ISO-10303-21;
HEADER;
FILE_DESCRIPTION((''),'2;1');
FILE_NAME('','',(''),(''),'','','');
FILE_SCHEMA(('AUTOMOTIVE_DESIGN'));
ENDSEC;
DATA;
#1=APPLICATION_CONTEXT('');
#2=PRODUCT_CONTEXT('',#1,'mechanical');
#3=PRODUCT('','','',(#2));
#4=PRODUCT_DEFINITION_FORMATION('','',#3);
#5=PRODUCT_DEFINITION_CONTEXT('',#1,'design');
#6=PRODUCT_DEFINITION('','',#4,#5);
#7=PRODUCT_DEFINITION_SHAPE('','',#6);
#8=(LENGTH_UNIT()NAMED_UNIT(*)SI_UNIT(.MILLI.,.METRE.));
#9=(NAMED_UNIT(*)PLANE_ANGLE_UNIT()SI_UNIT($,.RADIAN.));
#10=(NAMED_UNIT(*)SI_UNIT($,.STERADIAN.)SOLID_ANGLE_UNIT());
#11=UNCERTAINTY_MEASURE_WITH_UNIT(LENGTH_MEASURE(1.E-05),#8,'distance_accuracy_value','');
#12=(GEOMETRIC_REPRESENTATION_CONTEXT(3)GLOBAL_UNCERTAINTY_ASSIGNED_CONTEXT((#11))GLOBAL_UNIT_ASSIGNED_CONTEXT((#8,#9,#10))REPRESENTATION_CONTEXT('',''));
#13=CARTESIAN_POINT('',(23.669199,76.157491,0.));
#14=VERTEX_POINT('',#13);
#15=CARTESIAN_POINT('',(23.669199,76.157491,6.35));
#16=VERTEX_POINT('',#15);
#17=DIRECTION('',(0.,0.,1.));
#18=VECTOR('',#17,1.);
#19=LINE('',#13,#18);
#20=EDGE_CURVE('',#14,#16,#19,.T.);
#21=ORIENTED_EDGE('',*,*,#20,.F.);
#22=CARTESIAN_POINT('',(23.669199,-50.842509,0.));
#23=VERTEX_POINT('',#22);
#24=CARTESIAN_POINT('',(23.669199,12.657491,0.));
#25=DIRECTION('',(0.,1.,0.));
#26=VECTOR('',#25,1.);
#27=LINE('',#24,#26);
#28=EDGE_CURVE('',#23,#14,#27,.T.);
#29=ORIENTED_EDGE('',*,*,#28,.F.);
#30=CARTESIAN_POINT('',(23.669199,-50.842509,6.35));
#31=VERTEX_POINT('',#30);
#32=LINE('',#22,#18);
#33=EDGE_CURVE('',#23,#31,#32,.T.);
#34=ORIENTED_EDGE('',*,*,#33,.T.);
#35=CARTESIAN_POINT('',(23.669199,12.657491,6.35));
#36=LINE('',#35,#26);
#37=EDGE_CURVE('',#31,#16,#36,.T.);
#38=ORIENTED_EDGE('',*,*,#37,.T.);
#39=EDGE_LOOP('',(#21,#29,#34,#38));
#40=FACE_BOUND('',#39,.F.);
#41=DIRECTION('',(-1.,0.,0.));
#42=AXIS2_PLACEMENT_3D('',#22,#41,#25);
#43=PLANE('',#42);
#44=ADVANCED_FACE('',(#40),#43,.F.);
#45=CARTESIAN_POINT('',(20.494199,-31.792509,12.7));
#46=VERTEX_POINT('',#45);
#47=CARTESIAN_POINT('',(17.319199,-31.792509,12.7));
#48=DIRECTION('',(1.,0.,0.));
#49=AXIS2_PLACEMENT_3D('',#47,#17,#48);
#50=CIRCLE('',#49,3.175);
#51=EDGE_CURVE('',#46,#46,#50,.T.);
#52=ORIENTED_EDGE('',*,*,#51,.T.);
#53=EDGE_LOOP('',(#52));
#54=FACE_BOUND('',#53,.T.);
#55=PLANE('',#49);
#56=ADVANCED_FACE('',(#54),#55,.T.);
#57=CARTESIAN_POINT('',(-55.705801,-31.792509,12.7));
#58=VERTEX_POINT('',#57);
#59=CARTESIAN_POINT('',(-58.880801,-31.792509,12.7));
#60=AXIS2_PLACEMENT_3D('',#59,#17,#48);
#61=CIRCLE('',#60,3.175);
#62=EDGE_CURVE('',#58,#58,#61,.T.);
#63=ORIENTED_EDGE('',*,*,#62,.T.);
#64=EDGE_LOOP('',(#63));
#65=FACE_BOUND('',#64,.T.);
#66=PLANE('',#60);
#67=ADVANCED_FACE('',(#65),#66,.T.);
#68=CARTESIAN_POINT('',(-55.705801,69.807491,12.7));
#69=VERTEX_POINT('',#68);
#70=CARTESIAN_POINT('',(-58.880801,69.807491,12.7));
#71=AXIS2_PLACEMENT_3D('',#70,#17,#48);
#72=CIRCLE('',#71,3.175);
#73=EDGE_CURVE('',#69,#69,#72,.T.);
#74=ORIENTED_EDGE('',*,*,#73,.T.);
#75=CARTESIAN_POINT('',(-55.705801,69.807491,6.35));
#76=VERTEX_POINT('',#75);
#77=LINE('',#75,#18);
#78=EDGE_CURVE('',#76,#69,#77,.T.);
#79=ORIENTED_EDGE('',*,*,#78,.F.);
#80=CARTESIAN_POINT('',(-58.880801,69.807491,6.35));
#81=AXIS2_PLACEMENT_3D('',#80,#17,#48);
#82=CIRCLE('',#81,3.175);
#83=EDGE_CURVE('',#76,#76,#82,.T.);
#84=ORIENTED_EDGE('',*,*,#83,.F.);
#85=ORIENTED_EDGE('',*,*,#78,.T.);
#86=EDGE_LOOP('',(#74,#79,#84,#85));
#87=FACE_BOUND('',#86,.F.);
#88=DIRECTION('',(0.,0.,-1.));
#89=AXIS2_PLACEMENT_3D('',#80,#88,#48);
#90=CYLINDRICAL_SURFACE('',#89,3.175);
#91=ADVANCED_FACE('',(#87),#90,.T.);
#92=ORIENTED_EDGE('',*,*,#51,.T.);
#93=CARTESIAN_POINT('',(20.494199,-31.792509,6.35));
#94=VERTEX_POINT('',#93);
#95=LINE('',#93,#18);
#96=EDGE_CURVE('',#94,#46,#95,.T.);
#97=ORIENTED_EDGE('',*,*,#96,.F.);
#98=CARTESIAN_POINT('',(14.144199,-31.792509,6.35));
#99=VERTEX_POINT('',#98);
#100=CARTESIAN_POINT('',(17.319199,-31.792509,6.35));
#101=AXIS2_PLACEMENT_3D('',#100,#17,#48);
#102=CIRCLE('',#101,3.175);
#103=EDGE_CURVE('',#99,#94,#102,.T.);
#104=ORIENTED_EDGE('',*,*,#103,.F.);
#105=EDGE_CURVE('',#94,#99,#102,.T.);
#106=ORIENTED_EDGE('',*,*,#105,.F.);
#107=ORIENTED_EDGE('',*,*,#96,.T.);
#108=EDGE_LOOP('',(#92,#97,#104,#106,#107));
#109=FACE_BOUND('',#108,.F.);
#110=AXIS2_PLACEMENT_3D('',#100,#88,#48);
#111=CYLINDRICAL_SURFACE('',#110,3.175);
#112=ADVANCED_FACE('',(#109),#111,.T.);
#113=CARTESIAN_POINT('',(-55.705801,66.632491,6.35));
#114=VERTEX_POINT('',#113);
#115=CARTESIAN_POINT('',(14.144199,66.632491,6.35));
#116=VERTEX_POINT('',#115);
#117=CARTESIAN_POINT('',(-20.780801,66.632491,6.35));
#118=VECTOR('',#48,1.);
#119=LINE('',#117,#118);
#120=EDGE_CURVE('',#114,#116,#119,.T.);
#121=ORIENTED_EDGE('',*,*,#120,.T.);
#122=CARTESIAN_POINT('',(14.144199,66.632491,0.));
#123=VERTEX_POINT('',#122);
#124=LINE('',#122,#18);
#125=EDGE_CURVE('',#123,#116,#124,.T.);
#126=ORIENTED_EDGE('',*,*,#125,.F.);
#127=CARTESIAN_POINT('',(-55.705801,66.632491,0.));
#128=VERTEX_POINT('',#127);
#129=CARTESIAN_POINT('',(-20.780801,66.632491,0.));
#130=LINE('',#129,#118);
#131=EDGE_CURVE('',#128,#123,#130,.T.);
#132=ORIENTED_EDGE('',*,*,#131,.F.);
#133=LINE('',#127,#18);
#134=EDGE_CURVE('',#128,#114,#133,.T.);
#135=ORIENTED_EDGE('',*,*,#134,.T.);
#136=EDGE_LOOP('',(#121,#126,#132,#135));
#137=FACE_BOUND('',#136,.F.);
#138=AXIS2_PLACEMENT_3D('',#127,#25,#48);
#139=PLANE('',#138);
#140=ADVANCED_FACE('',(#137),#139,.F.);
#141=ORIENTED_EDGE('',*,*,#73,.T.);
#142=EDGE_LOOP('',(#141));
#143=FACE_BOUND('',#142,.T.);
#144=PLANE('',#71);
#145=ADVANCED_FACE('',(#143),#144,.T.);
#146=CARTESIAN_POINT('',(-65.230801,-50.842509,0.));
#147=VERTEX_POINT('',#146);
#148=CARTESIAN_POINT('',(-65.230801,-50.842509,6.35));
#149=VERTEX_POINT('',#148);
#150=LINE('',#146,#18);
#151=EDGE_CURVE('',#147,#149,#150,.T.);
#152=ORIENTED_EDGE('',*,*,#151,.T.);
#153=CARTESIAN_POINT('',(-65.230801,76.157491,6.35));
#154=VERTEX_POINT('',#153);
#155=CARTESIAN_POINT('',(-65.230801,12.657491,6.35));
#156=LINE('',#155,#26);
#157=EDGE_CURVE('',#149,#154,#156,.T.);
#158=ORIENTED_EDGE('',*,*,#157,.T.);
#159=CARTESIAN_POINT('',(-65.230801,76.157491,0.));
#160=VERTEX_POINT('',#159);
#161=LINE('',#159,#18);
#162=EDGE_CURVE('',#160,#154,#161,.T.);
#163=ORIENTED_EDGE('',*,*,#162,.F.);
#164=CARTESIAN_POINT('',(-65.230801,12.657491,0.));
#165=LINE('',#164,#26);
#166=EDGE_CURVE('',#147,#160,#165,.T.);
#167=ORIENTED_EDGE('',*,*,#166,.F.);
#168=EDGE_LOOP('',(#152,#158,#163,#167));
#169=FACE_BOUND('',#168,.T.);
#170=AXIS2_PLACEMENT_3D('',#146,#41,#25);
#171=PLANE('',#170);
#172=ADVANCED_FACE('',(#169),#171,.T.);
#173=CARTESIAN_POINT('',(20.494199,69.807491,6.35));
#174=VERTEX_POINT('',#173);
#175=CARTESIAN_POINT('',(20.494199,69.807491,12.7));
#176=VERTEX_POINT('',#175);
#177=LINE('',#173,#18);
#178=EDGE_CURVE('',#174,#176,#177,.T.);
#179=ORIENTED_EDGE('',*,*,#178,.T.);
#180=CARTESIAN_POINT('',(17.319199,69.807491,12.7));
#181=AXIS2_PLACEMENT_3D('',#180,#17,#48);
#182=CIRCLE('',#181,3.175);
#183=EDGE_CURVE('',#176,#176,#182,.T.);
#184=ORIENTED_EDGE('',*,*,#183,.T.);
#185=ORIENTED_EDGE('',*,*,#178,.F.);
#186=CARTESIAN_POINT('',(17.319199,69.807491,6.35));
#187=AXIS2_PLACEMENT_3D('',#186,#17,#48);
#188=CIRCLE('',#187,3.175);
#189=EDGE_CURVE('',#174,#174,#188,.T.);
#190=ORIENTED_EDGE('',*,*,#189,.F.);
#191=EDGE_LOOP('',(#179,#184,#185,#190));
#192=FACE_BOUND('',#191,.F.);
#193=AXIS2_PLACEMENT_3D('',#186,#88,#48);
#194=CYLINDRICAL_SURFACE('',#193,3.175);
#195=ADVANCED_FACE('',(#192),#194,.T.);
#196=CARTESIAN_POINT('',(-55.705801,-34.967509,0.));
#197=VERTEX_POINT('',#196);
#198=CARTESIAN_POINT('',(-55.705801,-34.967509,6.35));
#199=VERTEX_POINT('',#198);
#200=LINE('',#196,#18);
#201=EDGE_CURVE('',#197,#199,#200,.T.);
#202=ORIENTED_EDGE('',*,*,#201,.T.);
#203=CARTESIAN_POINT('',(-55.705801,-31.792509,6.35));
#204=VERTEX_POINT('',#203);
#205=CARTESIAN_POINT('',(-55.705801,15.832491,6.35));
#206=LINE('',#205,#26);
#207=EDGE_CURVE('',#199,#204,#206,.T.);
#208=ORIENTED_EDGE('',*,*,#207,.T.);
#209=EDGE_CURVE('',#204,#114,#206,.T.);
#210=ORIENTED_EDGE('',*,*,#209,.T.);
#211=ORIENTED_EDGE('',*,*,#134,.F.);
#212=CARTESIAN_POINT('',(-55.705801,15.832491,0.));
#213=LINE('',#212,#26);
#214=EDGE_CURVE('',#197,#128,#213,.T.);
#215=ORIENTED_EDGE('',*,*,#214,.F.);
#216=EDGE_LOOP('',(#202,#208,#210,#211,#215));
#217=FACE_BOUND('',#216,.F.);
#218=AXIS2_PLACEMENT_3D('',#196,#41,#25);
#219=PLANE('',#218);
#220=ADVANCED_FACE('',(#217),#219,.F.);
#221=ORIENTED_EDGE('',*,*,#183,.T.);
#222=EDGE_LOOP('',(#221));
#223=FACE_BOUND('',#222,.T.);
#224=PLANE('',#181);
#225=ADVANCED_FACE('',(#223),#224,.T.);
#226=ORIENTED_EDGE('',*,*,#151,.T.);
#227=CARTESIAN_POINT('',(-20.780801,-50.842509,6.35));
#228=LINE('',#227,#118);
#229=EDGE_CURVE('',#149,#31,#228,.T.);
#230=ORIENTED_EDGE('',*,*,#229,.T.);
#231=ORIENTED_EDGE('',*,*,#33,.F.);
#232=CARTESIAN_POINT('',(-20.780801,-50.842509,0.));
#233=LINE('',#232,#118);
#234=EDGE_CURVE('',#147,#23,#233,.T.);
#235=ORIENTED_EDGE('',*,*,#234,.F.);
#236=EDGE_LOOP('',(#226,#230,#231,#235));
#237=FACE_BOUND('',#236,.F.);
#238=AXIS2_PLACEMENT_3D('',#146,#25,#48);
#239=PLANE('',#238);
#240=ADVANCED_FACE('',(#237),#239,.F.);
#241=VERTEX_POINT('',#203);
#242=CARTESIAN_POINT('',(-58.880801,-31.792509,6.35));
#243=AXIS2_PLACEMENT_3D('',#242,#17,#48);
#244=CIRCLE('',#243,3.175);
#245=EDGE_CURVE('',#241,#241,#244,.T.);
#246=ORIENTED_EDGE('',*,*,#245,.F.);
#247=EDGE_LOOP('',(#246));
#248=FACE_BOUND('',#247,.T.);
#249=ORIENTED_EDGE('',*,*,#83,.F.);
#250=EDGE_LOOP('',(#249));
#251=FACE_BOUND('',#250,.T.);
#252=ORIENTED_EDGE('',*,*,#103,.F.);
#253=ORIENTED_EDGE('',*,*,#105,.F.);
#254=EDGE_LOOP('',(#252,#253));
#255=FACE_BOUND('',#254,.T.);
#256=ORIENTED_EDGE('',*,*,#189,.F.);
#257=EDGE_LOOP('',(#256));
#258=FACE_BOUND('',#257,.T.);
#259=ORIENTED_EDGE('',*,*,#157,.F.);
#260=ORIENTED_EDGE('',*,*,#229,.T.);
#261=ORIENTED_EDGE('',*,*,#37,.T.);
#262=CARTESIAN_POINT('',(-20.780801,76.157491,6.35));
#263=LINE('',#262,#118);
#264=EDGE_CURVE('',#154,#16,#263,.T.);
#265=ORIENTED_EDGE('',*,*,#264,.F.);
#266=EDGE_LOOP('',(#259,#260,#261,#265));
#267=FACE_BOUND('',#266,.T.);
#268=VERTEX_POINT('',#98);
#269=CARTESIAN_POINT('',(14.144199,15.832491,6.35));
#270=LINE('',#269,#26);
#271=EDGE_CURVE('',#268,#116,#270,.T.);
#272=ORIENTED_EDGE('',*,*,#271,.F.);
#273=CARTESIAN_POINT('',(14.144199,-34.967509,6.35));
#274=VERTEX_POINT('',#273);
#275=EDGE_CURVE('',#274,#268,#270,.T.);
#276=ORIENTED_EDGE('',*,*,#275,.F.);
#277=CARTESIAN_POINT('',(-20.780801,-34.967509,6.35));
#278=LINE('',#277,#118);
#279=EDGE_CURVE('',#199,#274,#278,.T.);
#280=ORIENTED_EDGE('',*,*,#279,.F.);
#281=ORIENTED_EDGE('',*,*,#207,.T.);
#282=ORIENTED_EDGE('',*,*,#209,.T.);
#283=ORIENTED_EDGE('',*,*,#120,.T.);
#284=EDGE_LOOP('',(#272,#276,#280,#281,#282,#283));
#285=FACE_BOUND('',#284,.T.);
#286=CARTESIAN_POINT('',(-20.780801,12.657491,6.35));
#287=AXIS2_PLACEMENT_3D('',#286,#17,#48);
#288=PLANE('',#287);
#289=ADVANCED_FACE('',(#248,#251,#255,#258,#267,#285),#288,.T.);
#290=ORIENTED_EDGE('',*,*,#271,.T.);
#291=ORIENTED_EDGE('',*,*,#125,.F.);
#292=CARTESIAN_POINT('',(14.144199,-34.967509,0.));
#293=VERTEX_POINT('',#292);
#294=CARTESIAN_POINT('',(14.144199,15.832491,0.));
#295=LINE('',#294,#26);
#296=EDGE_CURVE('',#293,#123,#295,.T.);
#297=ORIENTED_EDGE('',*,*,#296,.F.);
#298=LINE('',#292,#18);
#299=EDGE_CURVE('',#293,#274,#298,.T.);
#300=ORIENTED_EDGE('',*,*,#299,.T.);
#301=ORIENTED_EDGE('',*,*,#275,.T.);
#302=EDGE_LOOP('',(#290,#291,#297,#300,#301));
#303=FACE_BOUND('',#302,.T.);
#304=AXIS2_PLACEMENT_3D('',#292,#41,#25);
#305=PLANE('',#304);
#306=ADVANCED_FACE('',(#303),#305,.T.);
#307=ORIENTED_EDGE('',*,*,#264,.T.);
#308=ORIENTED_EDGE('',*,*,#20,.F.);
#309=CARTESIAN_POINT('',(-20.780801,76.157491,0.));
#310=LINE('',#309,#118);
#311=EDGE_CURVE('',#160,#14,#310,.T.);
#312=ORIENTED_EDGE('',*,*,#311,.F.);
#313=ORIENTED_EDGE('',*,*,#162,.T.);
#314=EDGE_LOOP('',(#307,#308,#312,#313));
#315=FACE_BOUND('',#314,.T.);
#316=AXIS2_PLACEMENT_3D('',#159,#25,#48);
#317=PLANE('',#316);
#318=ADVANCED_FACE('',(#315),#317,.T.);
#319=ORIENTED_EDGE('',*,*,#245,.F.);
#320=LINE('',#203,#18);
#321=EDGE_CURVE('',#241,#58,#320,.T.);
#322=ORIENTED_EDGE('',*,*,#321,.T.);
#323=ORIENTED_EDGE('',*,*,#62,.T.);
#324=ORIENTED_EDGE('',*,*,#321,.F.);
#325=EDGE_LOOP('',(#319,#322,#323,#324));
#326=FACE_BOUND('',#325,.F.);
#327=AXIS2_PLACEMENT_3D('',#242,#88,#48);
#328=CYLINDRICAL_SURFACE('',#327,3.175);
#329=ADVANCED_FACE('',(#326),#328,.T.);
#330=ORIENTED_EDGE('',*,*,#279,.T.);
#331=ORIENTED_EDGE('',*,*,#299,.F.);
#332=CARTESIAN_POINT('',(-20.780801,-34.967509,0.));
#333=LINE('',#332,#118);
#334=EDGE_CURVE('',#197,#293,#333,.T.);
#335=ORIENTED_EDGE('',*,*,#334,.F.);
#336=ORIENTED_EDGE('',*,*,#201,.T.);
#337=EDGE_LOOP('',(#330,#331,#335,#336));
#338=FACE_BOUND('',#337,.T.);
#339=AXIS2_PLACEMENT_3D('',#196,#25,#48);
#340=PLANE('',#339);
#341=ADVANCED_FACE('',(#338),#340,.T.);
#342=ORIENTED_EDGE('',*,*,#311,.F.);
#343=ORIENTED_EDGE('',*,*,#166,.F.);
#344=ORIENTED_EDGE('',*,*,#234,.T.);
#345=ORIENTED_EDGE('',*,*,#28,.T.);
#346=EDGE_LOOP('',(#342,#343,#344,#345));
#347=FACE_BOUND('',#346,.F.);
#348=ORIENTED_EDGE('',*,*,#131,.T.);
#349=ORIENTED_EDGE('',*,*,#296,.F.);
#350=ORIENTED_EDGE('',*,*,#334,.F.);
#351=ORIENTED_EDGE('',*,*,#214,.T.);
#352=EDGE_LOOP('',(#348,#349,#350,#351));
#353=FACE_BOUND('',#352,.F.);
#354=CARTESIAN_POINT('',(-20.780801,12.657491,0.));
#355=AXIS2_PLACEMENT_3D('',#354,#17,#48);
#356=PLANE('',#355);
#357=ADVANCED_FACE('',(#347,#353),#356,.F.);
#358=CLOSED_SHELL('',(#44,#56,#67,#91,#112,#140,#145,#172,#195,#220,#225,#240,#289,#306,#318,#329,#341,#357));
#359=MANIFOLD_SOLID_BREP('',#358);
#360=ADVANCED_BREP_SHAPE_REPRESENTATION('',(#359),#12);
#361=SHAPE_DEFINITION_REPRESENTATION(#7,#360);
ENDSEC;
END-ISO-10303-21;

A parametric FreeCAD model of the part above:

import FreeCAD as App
import Part
import Sketcher
Q = App.Units.Quantity

doc = App.newDocument("Part")
params = doc.addObject("Spreadsheet::Sheet", "Params")
for row, (alias, value) in enumerate([
    ("sketch1_height", "5 in"),
    ("sketch1_height2", "4 in"),
    ("sketch1_width", "3.5 in"),
    ("sketch1_width2", "2.75 in"),
    ("pad1_length", "0.25 in"),
    ("sketch2_diameter", "0.25 in"),
    ("pad2_length", "0.25 in"),
], start=1):
    params.set(f"A{row}", alias)
    params.set(f"B{row}", "=" + value)
    params.setAlias(f"B{row}", alias)

body = doc.addObject("PartDesign::Body", "Body")

sketch1 = body.newObject("Sketcher::SketchObject", "Sketch")
sketch1.AttachmentSupport = (doc.getObject("XY_Plane"), [""])
sketch1.MapMode = "FlatFace"
sketch1.addGeometry([
    Part.LineSegment(App.Vector(-65, 76, 0), App.Vector(-65, -51, 0)),
    Part.LineSegment(App.Vector(-65, -51, 0), App.Vector(24, -51, 0)),
    Part.LineSegment(App.Vector(24, -51, 0), App.Vector(24, 76, 0)),
    Part.LineSegment(App.Vector(24, 76, 0), App.Vector(-65, 76, 0)),
    Part.LineSegment(App.Vector(14, -35, 0), App.Vector(-56, -35, 0)),
    Part.LineSegment(App.Vector(-56, -35, 0), App.Vector(-56, 67, 0)),
    Part.LineSegment(App.Vector(-56, 67, 0), App.Vector(14, 67, 0)),
    Part.LineSegment(App.Vector(14, 67, 0), App.Vector(14, -35, 0)),
], False)
sketch1.addConstraint([
    Sketcher.Constraint("Coincident", 0, 2, 1, 1),
    Sketcher.Constraint("Coincident", 1, 2, 2, 1),
    Sketcher.Constraint("Coincident", 2, 2, 3, 1),
    Sketcher.Constraint("Coincident", 3, 2, 0, 1),
    Sketcher.Constraint("Coincident", 4, 2, 5, 1),
    Sketcher.Constraint("Coincident", 5, 2, 6, 1),
    Sketcher.Constraint("Coincident", 6, 2, 7, 1),
    Sketcher.Constraint("Coincident", 7, 2, 4, 1),
    Sketcher.Constraint("Vertical", 0),
    Sketcher.Constraint("Horizontal", 1),
    Sketcher.Constraint("Vertical", 2),
    Sketcher.Constraint("Horizontal", 3),
    Sketcher.Constraint("Horizontal", 4),
    Sketcher.Constraint("Vertical", 5),
    Sketcher.Constraint("Horizontal", 6),
    Sketcher.Constraint("Vertical", 7),
    Sketcher.Constraint("DistanceY", 0, 2, 0, 1, Q("5 in")),
    Sketcher.Constraint("DistanceY", 5, 1, 5, 2, Q("4 in")),
    Sketcher.Constraint("DistanceX", 1, 1, 1, 2, Q("3.5 in")),
    Sketcher.Constraint("DistanceX", 4, 2, 4, 1, Q("2.75 in")),
    Sketcher.Constraint("DistanceX", 0, 2, 4, 2, Q("0.375 in")),
    Sketcher.Constraint("DistanceY", 0, 2, 4, 2, Q("0.625 in")),
    Sketcher.Constraint("DistanceX", 0, 2, -1, 1, 65.230801),
    Sketcher.Constraint("DistanceY", 0, 2, -1, 1, 50.842509),
])
sketch1.setExpression("Constraints[16]", "Params.sketch1_height")
sketch1.setExpression("Constraints[17]", "Params.sketch1_height2")
sketch1.setExpression("Constraints[18]", "Params.sketch1_width")
sketch1.setExpression("Constraints[19]", "Params.sketch1_width2")
pad1 = body.newObject("PartDesign::Pad", "Pad")
pad1.Profile = sketch1
pad1.setExpression("Length", "Params.pad1_length")

sketch2 = body.newObject("Sketcher::SketchObject", "Sketch001")
sketch2.AttachmentSupport = (doc.getObject("XY_Plane"), [""])
sketch2.MapMode = "FlatFace"
sketch2.AttachmentOffset = App.Placement(App.Vector(0, 0, 0.25 * 25.4), App.Rotation())
sketch2.addGeometry([
    Part.Circle(App.Vector(-58.9, 69.8, 0), App.Vector(0, 0, 1), 3.2),
    Part.Circle(App.Vector(-58.9, -31.8, 0), App.Vector(0, 0, 1), 3.2),
    Part.Circle(App.Vector(17.3, 69.8, 0), App.Vector(0, 0, 1), 3.2),
    Part.Circle(App.Vector(17.3, -31.8, 0), App.Vector(0, 0, 1), 3.2),
], False)
sketch2.addConstraint([
    Sketcher.Constraint("Equal", 0, 1),
    Sketcher.Constraint("Equal", 1, 2),
    Sketcher.Constraint("Equal", 2, 3),
    Sketcher.Constraint("Horizontal", 0, 3, 2, 3),
    Sketcher.Constraint("Horizontal", 1, 3, 3, 3),
    Sketcher.Constraint("Vertical", 0, 3, 1, 3),
    Sketcher.Constraint("Vertical", 2, 3, 3, 3),
    Sketcher.Constraint("Diameter", 0, Q("0.25 in")),
    Sketcher.Constraint("DistanceY", 1, 3, 0, 3, Q("4 in")),
    Sketcher.Constraint("DistanceX", 0, 3, 2, 3, Q("3 in")),
    Sketcher.Constraint("DistanceX", 0, 3, -1, 1, 58.880801),
    Sketcher.Constraint("DistanceY", -1, 1, 0, 3, 69.807491),
])
sketch2.setExpression("Constraints[7]", "Params.sketch2_diameter")
pad2 = body.newObject("PartDesign::Pad", "Pad001")
pad2.Profile = sketch2
pad2.setExpression("Length", "Params.pad2_length")

doc.recompute()
